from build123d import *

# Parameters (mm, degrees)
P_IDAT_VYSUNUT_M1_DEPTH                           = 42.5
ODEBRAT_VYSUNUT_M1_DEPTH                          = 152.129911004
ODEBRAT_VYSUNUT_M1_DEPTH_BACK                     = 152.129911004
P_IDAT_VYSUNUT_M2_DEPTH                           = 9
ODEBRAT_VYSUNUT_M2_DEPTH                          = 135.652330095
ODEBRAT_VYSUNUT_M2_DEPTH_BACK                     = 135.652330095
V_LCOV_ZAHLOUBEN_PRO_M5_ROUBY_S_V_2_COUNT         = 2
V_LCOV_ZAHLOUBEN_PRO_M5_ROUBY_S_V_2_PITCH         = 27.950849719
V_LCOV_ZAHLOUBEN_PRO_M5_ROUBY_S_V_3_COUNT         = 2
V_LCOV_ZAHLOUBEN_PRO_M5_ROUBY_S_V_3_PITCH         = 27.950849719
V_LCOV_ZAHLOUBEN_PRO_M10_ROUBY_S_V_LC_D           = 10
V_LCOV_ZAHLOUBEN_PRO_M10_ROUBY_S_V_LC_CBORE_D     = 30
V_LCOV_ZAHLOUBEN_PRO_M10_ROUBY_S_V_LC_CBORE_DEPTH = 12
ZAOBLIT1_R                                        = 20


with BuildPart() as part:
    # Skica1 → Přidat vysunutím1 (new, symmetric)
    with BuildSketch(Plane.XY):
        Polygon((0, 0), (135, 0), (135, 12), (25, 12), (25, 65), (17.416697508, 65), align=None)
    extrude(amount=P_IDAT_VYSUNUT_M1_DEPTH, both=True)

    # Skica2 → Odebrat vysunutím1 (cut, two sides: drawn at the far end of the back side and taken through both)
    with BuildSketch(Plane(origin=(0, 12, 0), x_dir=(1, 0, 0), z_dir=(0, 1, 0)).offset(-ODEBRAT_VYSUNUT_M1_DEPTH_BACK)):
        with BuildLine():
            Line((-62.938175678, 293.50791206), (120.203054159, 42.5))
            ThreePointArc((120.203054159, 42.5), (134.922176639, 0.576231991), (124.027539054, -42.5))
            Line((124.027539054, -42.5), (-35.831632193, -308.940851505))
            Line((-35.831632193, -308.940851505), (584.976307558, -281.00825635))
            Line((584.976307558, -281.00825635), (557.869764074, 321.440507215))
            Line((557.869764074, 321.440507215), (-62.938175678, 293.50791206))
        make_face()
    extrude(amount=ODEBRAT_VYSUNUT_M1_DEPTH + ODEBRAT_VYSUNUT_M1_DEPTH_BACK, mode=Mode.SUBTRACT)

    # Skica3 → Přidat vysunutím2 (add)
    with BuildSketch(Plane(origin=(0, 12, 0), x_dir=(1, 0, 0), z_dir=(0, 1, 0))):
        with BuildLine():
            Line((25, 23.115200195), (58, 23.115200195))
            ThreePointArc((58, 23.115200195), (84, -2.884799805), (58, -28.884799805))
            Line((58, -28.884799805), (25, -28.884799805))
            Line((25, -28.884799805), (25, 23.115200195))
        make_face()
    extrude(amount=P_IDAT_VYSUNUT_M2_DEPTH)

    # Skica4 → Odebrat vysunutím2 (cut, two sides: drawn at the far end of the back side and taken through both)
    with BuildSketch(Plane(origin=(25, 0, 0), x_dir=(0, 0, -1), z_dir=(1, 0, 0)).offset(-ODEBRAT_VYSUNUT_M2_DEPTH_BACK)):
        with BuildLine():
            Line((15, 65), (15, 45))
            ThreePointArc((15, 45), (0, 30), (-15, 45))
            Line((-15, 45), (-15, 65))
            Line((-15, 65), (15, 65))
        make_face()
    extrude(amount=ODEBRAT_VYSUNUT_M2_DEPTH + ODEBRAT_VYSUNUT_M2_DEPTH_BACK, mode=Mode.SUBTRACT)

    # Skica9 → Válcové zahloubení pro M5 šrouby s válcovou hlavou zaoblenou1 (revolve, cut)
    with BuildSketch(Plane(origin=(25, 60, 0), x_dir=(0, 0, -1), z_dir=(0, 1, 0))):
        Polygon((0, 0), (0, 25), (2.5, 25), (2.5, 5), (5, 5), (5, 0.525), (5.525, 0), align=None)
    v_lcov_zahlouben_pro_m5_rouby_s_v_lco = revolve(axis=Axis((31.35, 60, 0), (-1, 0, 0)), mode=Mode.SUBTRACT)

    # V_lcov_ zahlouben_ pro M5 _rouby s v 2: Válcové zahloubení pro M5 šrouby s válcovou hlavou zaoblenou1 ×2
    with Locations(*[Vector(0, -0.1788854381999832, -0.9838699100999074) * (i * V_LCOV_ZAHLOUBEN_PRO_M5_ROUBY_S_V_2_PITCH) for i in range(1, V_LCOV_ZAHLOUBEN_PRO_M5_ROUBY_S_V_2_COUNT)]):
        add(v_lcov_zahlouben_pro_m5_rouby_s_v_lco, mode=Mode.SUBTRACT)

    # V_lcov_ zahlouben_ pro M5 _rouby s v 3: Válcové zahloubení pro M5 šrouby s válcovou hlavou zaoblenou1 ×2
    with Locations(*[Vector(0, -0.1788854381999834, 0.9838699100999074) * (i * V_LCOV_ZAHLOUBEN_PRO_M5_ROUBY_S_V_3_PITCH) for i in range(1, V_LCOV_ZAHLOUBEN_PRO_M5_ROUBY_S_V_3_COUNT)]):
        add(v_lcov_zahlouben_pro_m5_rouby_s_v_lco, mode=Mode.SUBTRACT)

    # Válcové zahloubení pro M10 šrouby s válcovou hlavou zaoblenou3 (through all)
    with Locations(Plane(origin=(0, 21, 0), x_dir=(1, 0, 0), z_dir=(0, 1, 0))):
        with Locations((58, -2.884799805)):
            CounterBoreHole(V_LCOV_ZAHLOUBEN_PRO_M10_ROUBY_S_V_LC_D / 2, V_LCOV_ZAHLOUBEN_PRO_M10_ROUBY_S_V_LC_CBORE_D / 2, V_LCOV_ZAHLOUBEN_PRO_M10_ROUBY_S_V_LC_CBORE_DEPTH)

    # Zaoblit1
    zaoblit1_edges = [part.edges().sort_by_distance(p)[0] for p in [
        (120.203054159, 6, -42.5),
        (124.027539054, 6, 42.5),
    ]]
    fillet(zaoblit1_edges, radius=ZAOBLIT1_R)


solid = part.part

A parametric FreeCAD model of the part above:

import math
import FreeCAD as App
import Part
import Sketcher

V = App.Vector
Q = App.Units.Quantity


def edges_at(feature, points):
    """Names of the edges that pass closest to the given points."""
    edges = feature.Shape.Edges
    near = lambda p: min(range(len(edges)), key=lambda i: edges[i].distToShape(Part.Vertex(*p))[0])
    return sorted({f"Edge{near(p) + 1}" for p in points})

doc = App.newDocument("Part")
body = doc.addObject("PartDesign::Body", "Body")

# Sketch on XY plane
sketch1 = body.newObject("Sketcher::SketchObject", "Sketch")
sketch1.AttachmentSupport = (doc.getObject("XY_Plane"), [""])
sketch1.MapMode = "FlatFace"
sketch1.addGeometry([
    Part.LineSegment(V(0, 0, 0), V(135, 0, 0)),  # 0
    Part.LineSegment(V(135, 0, 0), V(135, 12, 0)),  # 1
    Part.LineSegment(V(135, 12, 0), V(25, 12, 0)),  # 2
    Part.LineSegment(V(25, 12, 0), V(25, 65, 0)),  # 3
    Part.LineSegment(V(25, 65, 0), V(17, 65, 0)),  # 4
    Part.LineSegment(V(17, 65, 0), V(0, 0, 0)),  # 5
], False)
sketch1.addConstraint([
    Sketcher.Constraint("Coincident", 0, 2, 1, 1),
    Sketcher.Constraint("Coincident", 1, 2, 2, 1),
    Sketcher.Constraint("Coincident", 2, 2, 3, 1),
    Sketcher.Constraint("Coincident", 3, 2, 4, 1),
    Sketcher.Constraint("Coincident", 4, 2, 5, 1),
    Sketcher.Constraint("Coincident", 5, 2, 0, 1),
    Sketcher.Constraint("Horizontal", 0),
    Sketcher.Constraint("Vertical", 1),
    Sketcher.Constraint("Horizontal", 2),
    Sketcher.Constraint("Vertical", 3),
    Sketcher.Constraint("Horizontal", 4),
    Sketcher.Constraint("Coincident", 5, 2, -1, 1),
    Sketcher.Constraint("DistanceX", 0, 1, 0, 2, Q("135 mm")),
    Sketcher.Constraint("DistanceX", 2, 2, 2, 1, Q("110 mm")),
    Sketcher.Constraint("DistanceY", 1, 1, 1, 2, Q("12 mm")),
    Sketcher.Constraint("DistanceY", 3, 1, 3, 2, Q("53 mm")),
    Sketcher.Constraint("Angle", 5, Q("-105 deg")),
])
pad1 = body.newObject("PartDesign::Pad", "Pad")
pad1.Profile = sketch1
pad1.Length = 85
pad1.Midplane = True

# Sketch on XZ plane
sketch2 = body.newObject("Sketcher::SketchObject", "Sketch001")
sketch2.AttachmentSupport = (doc.getObject("XZ_Plane"), [""])
sketch2.MapMode = "FlatFace"
sketch2.AttachmentOffset = App.Placement(V(0, 0, -12), App.Rotation())
sketch2.addGeometry([
    Part.LineSegment(V(-63, -294, 0), V(120, -42, 0)),  # 0
    Part.ArcOfCircle(Part.Circle(V(58, 3, 0), V(0, 0, 1), 77), math.radians(-36), math.radians(31)),  # 1
    Part.LineSegment(V(124, 42, 0), V(-36, 309, 0)),  # 2
    Part.LineSegment(V(-36, 309, 0), V(585, 281, 0)),  # 3
    Part.LineSegment(V(585, 281, 0), V(558, -321, 0)),  # 4
    Part.LineSegment(V(558, -321, 0), V(-63, -294, 0)),  # 5
], False)
sketch2.addConstraint([
    Sketcher.Constraint("Tangent", 0, 2, 1, 1),
    Sketcher.Constraint("Tangent", 1, 2, 2, 1),
    Sketcher.Constraint("Coincident", 2, 2, 3, 1),
    Sketcher.Constraint("Coincident", 3, 2, 4, 1),
    Sketcher.Constraint("Coincident", 4, 2, 5, 1),
    Sketcher.Constraint("Coincident", 5, 2, 0, 1),
    Sketcher.Constraint("Perpendicular", 3, 4),
    Sketcher.Constraint("Perpendicular", 4, 5),
    Sketcher.Constraint("Equal", 0, 2),
    Sketcher.Constraint("Equal", 3, 5),
    Sketcher.Constraint("Radius", 1, Q("77 mm")),
    Sketcher.Constraint("DistanceX", -1, 1, 1, 3, Q("58 mm")),
    Sketcher.Constraint("DistanceY", 0, 2, 1, 2, Q("85 mm")),
    Sketcher.Constraint("DistanceY", 0, 2, -1, 1, Q("42.5 mm")),
    Sketcher.Constraint("DistanceY", -1, 1, 1, 3, Q("2.8848 mm")),
    Sketcher.Constraint("Distance", 0, Q("310.71801 mm")),
    Sketcher.Constraint("Distance", 3, Q("621.436021 mm")),
])
pocket1 = body.newObject("PartDesign::Pocket", "Pocket")
pocket1.Profile = sketch2
pocket1.Type = "ThroughAll"
pocket1.Midplane = True

# Sketch on XZ plane
sketch3 = body.newObject("Sketcher::SketchObject", "Sketch002")
sketch3.AttachmentSupport = (doc.getObject("XZ_Plane"), [""])
sketch3.MapMode = "FlatFace"
sketch3.AttachmentOffset = App.Placement(V(0, 0, -12), App.Rotation())
sketch3.addGeometry([
    Part.LineSegment(V(58, -23, 0), V(25, -23, 0)),
    Part.LineSegment(V(25, -23, 0), V(25, 29, 0)),
    Part.LineSegment(V(25, 29, 0), V(58, 29, 0)),
    Part.ArcOfCircle(Part.Circle(V(58, 3, 0), V(0, 0, 1), 26), math.radians(-90), math.radians(90)),
], False)
sketch3.addConstraint([
    Sketcher.Constraint("Coincident", 0, 2, 1, 1),
    Sketcher.Constraint("Coincident", 1, 2, 2, 1),
    Sketcher.Constraint("Tangent", 2, 2, 3, 2),
    Sketcher.Constraint("Tangent", 3, 1, 0, 1),
    Sketcher.Constraint("Horizontal", 0),
    Sketcher.Constraint("Vertical", 1),
    Sketcher.Constraint("Horizontal", 2),
    Sketcher.Constraint("Radius", 3, Q("26 mm")),
    Sketcher.Constraint("DistanceX", 0, 2, 0, 1, Q("33 mm")),
    Sketcher.Constraint("DistanceX", -1, 1, 3, 3, Q("58 mm")),
    Sketcher.Constraint("DistanceY", -1, 1, 3, 3, Q("2.8848 mm")),
])
pad2 = body.newObject("PartDesign::Pad", "Pad001")
pad2.Profile = sketch3
pad2.Length = 9
pad2.Reversed = True

# Sketch on YZ plane
sketch4 = body.newObject("Sketcher::SketchObject", "Sketch003")
sketch4.AttachmentSupport = (doc.getObject("YZ_Plane"), [""])
sketch4.MapMode = "FlatFace"
sketch4.AttachmentOffset = App.Placement(V(0, 0, 25), App.Rotation())
sketch4.addGeometry([
    Part.LineSegment(V(45, -15, 0), V(65, -15, 0)),
    Part.LineSegment(V(65, -15, 0), V(65, 15, 0)),
    Part.LineSegment(V(65, 15, 0), V(45, 15, 0)),
    Part.ArcOfCircle(Part.Circle(V(45, 0, 0), V(0, 0, 1), 15), math.radians(90), math.radians(270)),
], False)
sketch4.addConstraint([
    Sketcher.Constraint("Coincident", 0, 2, 1, 1),
    Sketcher.Constraint("Coincident", 1, 2, 2, 1),
    Sketcher.Constraint("Tangent", 2, 2, 3, 1),
    Sketcher.Constraint("Tangent", 3, 2, 0, 1),
    Sketcher.Constraint("Horizontal", 0),
    Sketcher.Constraint("Vertical", 1),
    Sketcher.Constraint("Horizontal", 2),
    Sketcher.Constraint("PointOnObject", 3, 3, -1),
    Sketcher.Constraint("Radius", 3, Q("15 mm")),
    Sketcher.Constraint("DistanceX", 0, 1, 0, 2, Q("20 mm")),
    Sketcher.Constraint("DistanceX", -1, 1, 3, 3, Q("45 mm")),
])
pocket2 = body.newObject("PartDesign::Pocket", "Pocket001")
pocket2.Profile = sketch4
pocket2.Type = "ThroughAll"
pocket2.Midplane = True

# Sketch on XZ plane
sketch5 = body.newObject("Sketcher::SketchObject", "Sketch004")
sketch5.AttachmentSupport = (doc.getObject("XZ_Plane"), [""])
sketch5.MapMode = "FlatFace"
sketch5.AttachmentOffset = App.Placement(V(0, 0, -60), App.Rotation())
sketch5.addGeometry([
    Part.LineSegment(V(0, 0, 0), V(25, 0, 0)),  # 0
    Part.LineSegment(V(25, 0, 0), V(25, -5.5, 0)),  # 1
    Part.LineSegment(V(25, -5.5, 0), V(24.5, -5, 0)),  # 2
    Part.LineSegment(V(24.5, -5, 0), V(20, -5, 0)),  # 3
    Part.LineSegment(V(20, -5, 0), V(20, -2.5, 0)),  # 4
    Part.LineSegment(V(20, -2.5, 0), V(0, -2.5, 0)),  # 5
    Part.LineSegment(V(0, -2.5, 0), V(0, 0, 0)),  # 6
], False)
sketch5.addConstraint([
    Sketcher.Constraint("Coincident", 0, 2, 1, 1),
    Sketcher.Constraint("Coincident", 1, 2, 2, 1),
    Sketcher.Constraint("Coincident", 2, 2, 3, 1),
    Sketcher.Constraint("Coincident", 3, 2, 4, 1),
    Sketcher.Constraint("Coincident", 4, 2, 5, 1),
    Sketcher.Constraint("Coincident", 5, 2, 6, 1),
    Sketcher.Constraint("Coincident", 6, 2, 0, 1),
    Sketcher.Constraint("Horizontal", 0),
    Sketcher.Constraint("Vertical", 1),
    Sketcher.Constraint("Horizontal", 3),
    Sketcher.Constraint("Vertical", 4),
    Sketcher.Constraint("Horizontal", 5),
    Sketcher.Constraint("Vertical", 6),
    Sketcher.Constraint("Coincident", 6, 2, -1, 1),
    Sketcher.Constraint("Equal", 4, 6),
    Sketcher.Constraint("DistanceX", 0, 1, 0, 2, Q("25 mm")),
    Sketcher.Constraint("DistanceX", 5, 2, 5, 1, Q("20 mm")),
    Sketcher.Constraint("Angle", 2, Q("135 deg")),
    Sketcher.Constraint("DistanceY", 4, 1, 4, 2, Q("2.5 mm")),
    Sketcher.Constraint("DistanceX", 3, 2, 3, 1, Q("4.475 mm")),
])
groove = body.newObject("PartDesign::Groove", "Groove")
groove.Profile = sketch5
groove.ReferenceAxis = (sketch5, ["H_Axis"])
groove.Angle = 360
doc.recompute()

datumline = body.newObject("PartDesign::Line", "DatumLine")
datumline.Placement = App.Placement(V(0, 0, 0), App.Rotation(V(0, 0, 1), V(0, -0.178885438, -0.98386991)))
linearpattern = body.newObject("PartDesign::LinearPattern", "LinearPattern")
linearpattern.Originals = [groove]
linearpattern.Direction = (datumline, [""])
linearpattern.Mode = "offset"
linearpattern.Offset = 27.95085
linearpattern.Occurrences = 2
body.Tip = linearpattern
doc.recompute()

datumline2 = body.newObject("PartDesign::Line", "DatumLine001")
datumline2.Placement = App.Placement(V(0, 0, 0), App.Rotation(V(0, 0, 1), V(0, -0.178885438, 0.98386991)))
linearpattern2 = body.newObject("PartDesign::LinearPattern", "LinearPattern001")
linearpattern2.Originals = [groove]
linearpattern2.Direction = (datumline2, [""])
linearpattern2.Mode = "offset"
linearpattern2.Offset = 27.95085
linearpattern2.Occurrences = 2
body.Tip = linearpattern2

# Sketch on XZ plane
sketch6 = body.newObject("Sketcher::SketchObject", "Sketch005")
sketch6.AttachmentSupport = (doc.getObject("XZ_Plane"), [""])
sketch6.MapMode = "FlatFace"
sketch6.AttachmentOffset = App.Placement(V(0, 0, -21), App.Rotation())
sketch6.addGeometry(Part.Circle(V(58, 3, 0), V(0, 0, 1), 5), False)
sketch6.addConstraint([
    Sketcher.Constraint("Diameter", 0, Q("10 mm")),
    Sketcher.Constraint("DistanceX", -1, 1, 0, 3, Q("58 mm")),
    Sketcher.Constraint("DistanceY", -1, 1, 0, 3, Q("2.8848 mm")),
])
doc.recompute()
hole = body.newObject("PartDesign::Hole", "Hole")
hole.Profile = sketch6
hole.ThreadType = "None"
hole.Diameter = 10
hole.DepthType = "ThroughAll"
hole.HoleCutType = "Counterbore"
hole.HoleCutDiameter = 30
hole.HoleCutDepth = 12
hole.Reversed = True
doc.recompute()

fillet = body.newObject("PartDesign::Fillet", "Fillet")
fillet.Base = (hole, edges_at(hole, [(120.203, 6, -42.5), (124.028, 6, 42.5)]))
fillet.Radius = 20

doc.recompute()
